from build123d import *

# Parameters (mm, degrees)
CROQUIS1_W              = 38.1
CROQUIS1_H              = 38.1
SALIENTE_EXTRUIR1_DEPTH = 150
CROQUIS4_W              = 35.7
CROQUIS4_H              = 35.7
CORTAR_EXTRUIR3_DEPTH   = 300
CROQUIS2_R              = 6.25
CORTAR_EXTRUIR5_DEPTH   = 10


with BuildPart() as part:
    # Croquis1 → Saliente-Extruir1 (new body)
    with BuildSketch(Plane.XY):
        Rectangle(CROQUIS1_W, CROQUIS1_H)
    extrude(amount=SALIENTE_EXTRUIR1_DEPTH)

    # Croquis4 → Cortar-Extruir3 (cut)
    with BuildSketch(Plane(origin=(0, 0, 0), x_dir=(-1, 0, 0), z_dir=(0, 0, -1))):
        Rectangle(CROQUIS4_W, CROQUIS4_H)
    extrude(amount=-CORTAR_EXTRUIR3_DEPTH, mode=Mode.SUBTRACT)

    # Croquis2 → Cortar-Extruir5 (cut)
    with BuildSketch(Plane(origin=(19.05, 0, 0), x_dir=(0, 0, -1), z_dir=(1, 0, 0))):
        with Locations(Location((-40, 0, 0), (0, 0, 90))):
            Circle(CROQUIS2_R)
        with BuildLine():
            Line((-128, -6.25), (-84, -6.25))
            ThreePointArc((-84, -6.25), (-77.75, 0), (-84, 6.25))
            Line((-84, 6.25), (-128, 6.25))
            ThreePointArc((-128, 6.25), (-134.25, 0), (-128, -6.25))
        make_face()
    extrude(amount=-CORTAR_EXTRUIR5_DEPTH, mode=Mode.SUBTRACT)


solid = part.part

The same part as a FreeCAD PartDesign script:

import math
import FreeCAD as App
import Part
import Sketcher
Q = App.Units.Quantity


def add_polygon(sketch, points):
    """Adds a closed chain of lines whose ends are joined by coincident constraints."""
    first, n = sketch.GeometryCount, len(points)
    for a, b in zip(points, points[1:] + points[:1]):
        sketch.addGeometry(Part.LineSegment(App.Vector(*a, 0), App.Vector(*b, 0)), False)
    for i in range(n):
        sketch.addConstraint(Sketcher.Constraint("Coincident", first + i, 2, first + (i + 1) % n, 1))

doc = App.newDocument("Part")
body = doc.addObject("PartDesign::Body", "Body")

sketch1 = doc.addObject("Sketcher::SketchObject", "Sketch")
body.addObject(sketch1)
sketch1.AttachmentSupport = (doc.XY_Plane, [""])
sketch1.MapMode = "FlatFace"
add_polygon(sketch1, [(-19, 19), (-19, -19), (19, -19), (19, 19)])
sketch1.addConstraint([
    Sketcher.Constraint("Vertical", 0),
    Sketcher.Constraint("Horizontal", 1),
    Sketcher.Constraint("Vertical", 2),
    Sketcher.Constraint("Horizontal", 3),
    Sketcher.Constraint("Symmetric", 0, 2, 2, 2, -1, 1),
    Sketcher.Constraint("Equal", 3, 0),
    Sketcher.Constraint("DistanceX", 1, 1, 1, 2, Q("38.1 mm")),
])
pad1 = doc.addObject("PartDesign::Pad", "Pad")
body.addObject(pad1)
pad1.Profile = sketch1
pad1.Length = 150

sketch2 = doc.addObject("Sketcher::SketchObject", "Sketch001")
body.addObject(sketch2)
sketch2.AttachmentSupport = (doc.XY_Plane, [""])
sketch2.MapMode = "FlatFace"
add_polygon(sketch2, [(18, 18), (18, -18), (-18, -18), (-18, 18)])
sketch2.addConstraint([
    Sketcher.Constraint("Vertical", 0),
    Sketcher.Constraint("Horizontal", 1),
    Sketcher.Constraint("Vertical", 2),
    Sketcher.Constraint("Horizontal", 3),
    Sketcher.Constraint("Symmetric", 0, 2, 2, 2, -1, 1),
    Sketcher.Constraint("Equal", 3, 0),
    Sketcher.Constraint("DistanceX", 1, 2, 1, 1, Q("35.7 mm")),
])
pocket1 = doc.addObject("PartDesign::Pocket", "Pocket")
body.addObject(pocket1)
pocket1.Profile = sketch2
pocket1.Length = 300
pocket1.Reversed = True

sketch3 = doc.addObject("Sketcher::SketchObject", "Sketch002")
body.addObject(sketch3)
sketch3.AttachmentSupport = (doc.YZ_Plane, [""])
sketch3.MapMode = "FlatFace"
sketch3.AttachmentOffset = App.Placement(App.Vector(0, 0, 19.05), App.Rotation())
sketch3.addGeometry([
    Part.Circle(App.Vector(0, 40, 0), App.Vector(0, 0, 1), 6),
    Part.LineSegment(App.Vector(-6, 128, 0), App.Vector(-6, 84, 0)),
    Part.ArcOfCircle(Part.Circle(App.Vector(0, 84, 0), App.Vector(0, 0, 1), 6), math.radians(180), math.radians(360)),
    Part.LineSegment(App.Vector(6, 84, 0), App.Vector(6, 128, 0)),
    Part.ArcOfCircle(Part.Circle(App.Vector(0, 128, 0), App.Vector(0, 0, 1), 6), math.radians(0), math.radians(180)),
], False)
sketch3.addConstraint([
    Sketcher.Constraint("Tangent", 1, 2, 2, 1),
    Sketcher.Constraint("Tangent", 2, 2, 3, 1),
    Sketcher.Constraint("Tangent", 3, 2, 4, 1),
    Sketcher.Constraint("Tangent", 4, 2, 1, 1),
    Sketcher.Constraint("Vertical", 1),
    Sketcher.Constraint("Vertical", 3),
    Sketcher.Constraint("Equal", 0, 2),
    Sketcher.Constraint("PointOnObject", 0, 3, -2),
    Sketcher.Constraint("PointOnObject", 2, 3, -2),
    Sketcher.Constraint("Diameter", 0, Q("12.5 mm")),
    Sketcher.Constraint("DistanceY", 1, 2, 1, 1, Q("44 mm")),
    Sketcher.Constraint("DistanceY", -1, 1, 0, 3, Q("40 mm")),
    Sketcher.Constraint("DistanceY", -1, 1, 2, 3, Q("84 mm")),
])
pocket2 = doc.addObject("PartDesign::Pocket", "Pocket001")
body.addObject(pocket2)
pocket2.Profile = sketch3
pocket2.Length = 10

doc.recompute()
